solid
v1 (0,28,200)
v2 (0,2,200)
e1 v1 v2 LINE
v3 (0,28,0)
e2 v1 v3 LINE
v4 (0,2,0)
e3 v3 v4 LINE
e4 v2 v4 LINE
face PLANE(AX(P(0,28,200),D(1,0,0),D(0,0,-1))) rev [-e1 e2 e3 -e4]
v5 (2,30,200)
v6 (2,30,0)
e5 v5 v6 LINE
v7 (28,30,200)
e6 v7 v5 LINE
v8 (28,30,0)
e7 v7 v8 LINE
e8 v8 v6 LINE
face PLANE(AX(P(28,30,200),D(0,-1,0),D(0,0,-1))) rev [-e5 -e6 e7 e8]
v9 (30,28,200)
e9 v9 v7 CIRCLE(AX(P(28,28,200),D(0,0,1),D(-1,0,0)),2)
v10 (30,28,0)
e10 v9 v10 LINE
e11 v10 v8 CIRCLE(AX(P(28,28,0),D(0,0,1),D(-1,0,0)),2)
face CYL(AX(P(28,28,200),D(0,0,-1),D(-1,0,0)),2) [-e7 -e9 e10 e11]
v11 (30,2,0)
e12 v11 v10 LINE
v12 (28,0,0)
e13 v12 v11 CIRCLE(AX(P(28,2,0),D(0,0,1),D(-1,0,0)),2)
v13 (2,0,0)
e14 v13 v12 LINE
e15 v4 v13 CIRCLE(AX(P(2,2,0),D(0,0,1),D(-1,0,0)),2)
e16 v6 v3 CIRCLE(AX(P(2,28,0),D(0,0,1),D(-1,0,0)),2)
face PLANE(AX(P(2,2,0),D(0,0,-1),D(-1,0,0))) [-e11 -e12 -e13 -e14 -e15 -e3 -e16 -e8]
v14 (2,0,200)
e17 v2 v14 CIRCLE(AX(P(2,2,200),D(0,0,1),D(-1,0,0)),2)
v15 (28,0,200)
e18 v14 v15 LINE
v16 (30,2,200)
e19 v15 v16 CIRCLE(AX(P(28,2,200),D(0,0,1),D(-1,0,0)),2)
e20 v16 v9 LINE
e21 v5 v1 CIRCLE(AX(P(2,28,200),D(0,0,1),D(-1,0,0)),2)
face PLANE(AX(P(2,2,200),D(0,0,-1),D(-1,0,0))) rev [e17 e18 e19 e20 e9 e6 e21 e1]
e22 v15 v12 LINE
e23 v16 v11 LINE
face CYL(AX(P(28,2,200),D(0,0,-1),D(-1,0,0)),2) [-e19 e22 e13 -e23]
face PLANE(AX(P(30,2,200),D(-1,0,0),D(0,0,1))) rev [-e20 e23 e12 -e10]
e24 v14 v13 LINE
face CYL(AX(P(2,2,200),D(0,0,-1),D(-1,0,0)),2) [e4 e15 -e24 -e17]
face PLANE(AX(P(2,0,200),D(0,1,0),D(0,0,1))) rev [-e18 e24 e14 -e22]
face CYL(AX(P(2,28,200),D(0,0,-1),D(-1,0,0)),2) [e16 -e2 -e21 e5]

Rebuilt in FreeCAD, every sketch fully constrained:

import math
import FreeCAD as App
import Part
import Sketcher

V = App.Vector

doc = App.newDocument("Part")
params = doc.addObject("Spreadsheet::Sheet", "Params")
for row, (alias, value) in enumerate([
    ("sketch1_radius", "2 mm"),
    ("sketch1_width", "26 mm"),
    ("pad1_length", "200 mm"),
], start=1):
    params.set(f"A{row}", alias)
    params.set(f"B{row}", "=" + value)
    params.setAlias(f"B{row}", alias)

body = doc.addObject("PartDesign::Body", "Body")

sketch1 = body.newObject("Sketcher::SketchObject", "Sketch")
sketch1.AttachmentSupport = (doc.getObject("XY_Plane"), [""])
sketch1.MapMode = "FlatFace"
sketch1.addGeometry(Part.LineSegment(V(2, 0, 0), V(28, 0, 0)), False)
sketch1.addGeometry(Part.ArcOfCircle(Part.Circle(V(28, 2, 0), V(0, 0, 1), 2), math.radians(-90), math.radians(0)), False)
sketch1.addGeometry(Part.LineSegment(V(30, 2, 0), V(30, 28, 0)), False)
sketch1.addGeometry(Part.ArcOfCircle(Part.Circle(V(28, 28, 0), V(0, 0, 1), 2), math.radians(0), math.radians(90)), False)
sketch1.addGeometry(Part.LineSegment(V(28, 30, 0), V(2, 30, 0)), False)
sketch1.addGeometry(Part.ArcOfCircle(Part.Circle(V(2, 28, 0), V(0, 0, 1), 2), math.radians(90), math.radians(180)), False)
sketch1.addGeometry(Part.LineSegment(V(0, 28, 0), V(0, 2, 0)), False)
sketch1.addGeometry(Part.ArcOfCircle(Part.Circle(V(2, 2, 0), V(0, 0, 1), 2), math.radians(-180), math.radians(-90)), False)
sketch1.addConstraint(Sketcher.Constraint("Tangent", 0, 2, 1, 1))
sketch1.addConstraint(Sketcher.Constraint("Tangent", 1, 2, 2, 1))
sketch1.addConstraint(Sketcher.Constraint("Tangent", 2, 2, 3, 1))
sketch1.addConstraint(Sketcher.Constraint("Tangent", 3, 2, 4, 1))
sketch1.addConstraint(Sketcher.Constraint("Tangent", 4, 2, 5, 1))
sketch1.addConstraint(Sketcher.Constraint("Tangent", 5, 2, 6, 1))
sketch1.addConstraint(Sketcher.Constraint("Tangent", 6, 2, 7, 1))
sketch1.addConstraint(Sketcher.Constraint("Tangent", 7, 2, 0, 1))
sketch1.addConstraint(Sketcher.Constraint("Horizontal", 0))
sketch1.addConstraint(Sketcher.Constraint("Vertical", 2))
sketch1.addConstraint(Sketcher.Constraint("Horizontal", 4))
sketch1.addConstraint(Sketcher.Constraint("Vertical", 6))
sketch1.addConstraint(Sketcher.Constraint("Equal", 1, 3))
sketch1.addConstraint(Sketcher.Constraint("Equal", 3, 5))
sketch1.addConstraint(Sketcher.Constraint("Equal", 5, 7))
sketch1.addConstraint(Sketcher.Constraint("PointOnObject", 0, 2, -1))
sketch1.addConstraint(Sketcher.Constraint("PointOnObject", 5, 2, -2))
sketch1.addConstraint(Sketcher.Constraint("Equal", 4, 2))
sketch1.addConstraint(Sketcher.Constraint("Radius", 1, 2.0))
sketch1.addConstraint(Sketcher.Constraint("DistanceX", 0, 1, 0, 2, 26.0))
sketch1.setExpression("Constraints[18]", "Params.sketch1_radius")
sketch1.setExpression("Constraints[19]", "Params.sketch1_width")
pad1 = body.newObject("PartDesign::Pad", "Pad")
pad1.Profile = sketch1
pad1.setExpression("Length", "Params.pad1_length")

doc.recompute()
